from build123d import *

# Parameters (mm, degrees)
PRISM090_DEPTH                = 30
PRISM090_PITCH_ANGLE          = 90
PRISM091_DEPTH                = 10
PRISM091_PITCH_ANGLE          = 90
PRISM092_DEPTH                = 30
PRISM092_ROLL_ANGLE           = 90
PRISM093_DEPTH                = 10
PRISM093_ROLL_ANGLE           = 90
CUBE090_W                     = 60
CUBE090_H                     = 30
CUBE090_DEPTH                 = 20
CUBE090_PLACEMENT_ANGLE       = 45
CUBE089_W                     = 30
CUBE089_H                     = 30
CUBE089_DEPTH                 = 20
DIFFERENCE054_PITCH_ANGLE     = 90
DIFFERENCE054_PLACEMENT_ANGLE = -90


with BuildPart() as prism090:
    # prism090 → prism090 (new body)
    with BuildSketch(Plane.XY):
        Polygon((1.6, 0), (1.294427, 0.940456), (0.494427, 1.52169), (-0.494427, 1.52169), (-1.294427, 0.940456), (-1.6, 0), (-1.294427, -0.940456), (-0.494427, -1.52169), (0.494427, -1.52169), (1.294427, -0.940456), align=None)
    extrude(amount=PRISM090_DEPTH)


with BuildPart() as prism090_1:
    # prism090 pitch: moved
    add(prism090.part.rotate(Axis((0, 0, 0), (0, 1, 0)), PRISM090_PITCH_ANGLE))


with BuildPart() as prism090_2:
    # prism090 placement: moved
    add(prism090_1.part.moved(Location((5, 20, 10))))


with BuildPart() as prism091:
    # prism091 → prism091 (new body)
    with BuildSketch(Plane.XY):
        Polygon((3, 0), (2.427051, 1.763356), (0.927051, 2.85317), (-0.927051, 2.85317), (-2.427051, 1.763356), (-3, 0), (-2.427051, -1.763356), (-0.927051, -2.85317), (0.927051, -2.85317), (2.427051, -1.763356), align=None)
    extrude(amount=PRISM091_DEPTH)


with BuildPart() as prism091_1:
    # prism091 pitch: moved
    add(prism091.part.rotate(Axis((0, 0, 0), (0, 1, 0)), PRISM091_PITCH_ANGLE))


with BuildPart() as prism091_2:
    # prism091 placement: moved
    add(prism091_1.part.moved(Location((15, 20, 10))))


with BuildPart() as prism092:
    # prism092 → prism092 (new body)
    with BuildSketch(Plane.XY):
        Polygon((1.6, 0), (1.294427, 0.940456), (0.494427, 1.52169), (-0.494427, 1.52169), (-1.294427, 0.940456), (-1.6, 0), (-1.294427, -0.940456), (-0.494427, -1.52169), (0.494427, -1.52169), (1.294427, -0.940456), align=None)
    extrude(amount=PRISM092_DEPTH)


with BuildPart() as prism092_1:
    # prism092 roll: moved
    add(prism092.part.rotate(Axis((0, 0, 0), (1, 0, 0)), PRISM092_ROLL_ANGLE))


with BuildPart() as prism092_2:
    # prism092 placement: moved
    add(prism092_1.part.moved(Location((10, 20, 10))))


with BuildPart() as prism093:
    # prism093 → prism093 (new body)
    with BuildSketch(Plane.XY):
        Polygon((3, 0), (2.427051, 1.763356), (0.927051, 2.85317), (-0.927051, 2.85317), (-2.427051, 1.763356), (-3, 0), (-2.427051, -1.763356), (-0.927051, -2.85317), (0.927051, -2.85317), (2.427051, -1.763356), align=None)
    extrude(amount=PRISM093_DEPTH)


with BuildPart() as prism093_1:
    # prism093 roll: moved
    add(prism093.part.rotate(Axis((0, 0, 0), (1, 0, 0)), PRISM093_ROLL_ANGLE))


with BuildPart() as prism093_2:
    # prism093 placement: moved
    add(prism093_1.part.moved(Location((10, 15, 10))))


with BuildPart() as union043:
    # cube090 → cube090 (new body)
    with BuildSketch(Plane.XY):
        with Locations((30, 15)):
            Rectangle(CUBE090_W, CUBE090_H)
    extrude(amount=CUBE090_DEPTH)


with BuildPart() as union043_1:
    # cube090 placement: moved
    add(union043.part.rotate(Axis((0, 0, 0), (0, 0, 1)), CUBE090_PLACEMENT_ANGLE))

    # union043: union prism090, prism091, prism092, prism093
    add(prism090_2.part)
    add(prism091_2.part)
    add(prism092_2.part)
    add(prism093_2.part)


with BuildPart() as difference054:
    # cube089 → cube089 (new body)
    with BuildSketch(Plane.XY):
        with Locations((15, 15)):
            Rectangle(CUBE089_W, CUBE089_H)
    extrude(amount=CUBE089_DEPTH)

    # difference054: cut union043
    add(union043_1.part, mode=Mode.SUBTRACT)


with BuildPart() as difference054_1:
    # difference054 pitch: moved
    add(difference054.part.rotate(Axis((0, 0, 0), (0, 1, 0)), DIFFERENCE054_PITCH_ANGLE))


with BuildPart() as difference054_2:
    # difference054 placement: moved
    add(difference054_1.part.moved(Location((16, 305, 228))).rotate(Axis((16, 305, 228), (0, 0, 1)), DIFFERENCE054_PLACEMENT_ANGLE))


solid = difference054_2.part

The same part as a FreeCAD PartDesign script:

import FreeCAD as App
import Part
import Sketcher
Q = App.Units.Quantity


def add_polygon(sketch, points):
    """Adds a closed chain of lines whose ends are joined by coincident constraints."""
    first, n = sketch.GeometryCount, len(points)
    for a, b in zip(points, points[1:] + points[:1]):
        sketch.addGeometry(Part.LineSegment(App.Vector(*a, 0), App.Vector(*b, 0)), False)
    for i in range(n):
        sketch.addConstraint(Sketcher.Constraint("Coincident", first + i, 2, first + (i + 1) % n, 1))

doc = App.newDocument("Part")
body = doc.addObject("PartDesign::Body", "Body")

# Sketch on XY plane
sketch1 = body.newObject("Sketcher::SketchObject", "Sketch")
sketch1.AttachmentSupport = (doc.getObject("XY_Plane"), [""])
sketch1.MapMode = "FlatFace"
add_polygon(sketch1, [(1.6, 0), (1.3, 0.9), (0.5, 1.5), (-0.5, 1.5), (-1.3, 0.9), (-1.6, 0), (-1.3, -0.9), (-0.5, -1.5), (0.5, -1.5), (1.3, -0.9)])  # lines 0-9
sketch1.addConstraint([
    Sketcher.Constraint("Horizontal", 2),
    Sketcher.Constraint("Horizontal", 7),
    Sketcher.Constraint("Symmetric", 0, 2, 5, 2, -1, 1),
    Sketcher.Constraint("Symmetric", 1, 2, 6, 2, -1, 1),
    Sketcher.Constraint("Symmetric", 3, 2, 8, 2, -1, 1),
    Sketcher.Constraint("Symmetric", 4, 2, 9, 2, -1, 1),
    Sketcher.Constraint("Symmetric", 0, 2, 3, 2, -2),
    Sketcher.Constraint("PointOnObject", 4, 2, -1),
    Sketcher.Constraint("Parallel", 3, 8),
    Sketcher.Constraint("Vertical", 2, 2, 6, 2),
    Sketcher.Constraint("Equal", 0, 1),
    Sketcher.Constraint("Angle", 0, Q("108.000018 deg")),
    Sketcher.Constraint("Angle", 1, Q("144.000001 deg")),
    Sketcher.Constraint("DistanceX", 4, 2, -1, 1, Q("1.6 mm")),
    Sketcher.Constraint("DistanceX", 1, 2, 0, 2, Q("0.8 mm")),
])
pad1 = body.newObject("PartDesign::Pad", "Pad")
pad1.Profile = sketch1
pad1.Length = 30
body2 = doc.addObject("PartDesign::Body", "Body001")
doc.recompute()

body.Placement = App.Placement(App.Vector(0, 0, 0), App.Rotation(App.Vector(0, 1, 0), 90))
boolean = body2.newObject("PartDesign::Boolean", "Boolean")
boolean.Type = "Fuse"
boolean.addObjects([body])
body3 = doc.addObject("PartDesign::Body", "Body002")
doc.recompute()

body2.Placement = App.Placement(App.Vector(5, 20, 10), App.Rotation(App.Vector(0, 0, 1), 0))
boolean2 = body3.newObject("PartDesign::Boolean", "Boolean001")
boolean2.Type = "Fuse"
boolean2.addObjects([body2])
body4 = doc.addObject("PartDesign::Body", "Body003")

# Sketch on XY plane
sketch2 = body4.newObject("Sketcher::SketchObject", "Sketch001")
sketch2.AttachmentSupport = (doc.getObject("XY_Plane003"), [""])
sketch2.MapMode = "FlatFace"
add_polygon(sketch2, [(3, 0), (2.4, 1.8), (0.9, 2.9), (-0.9, 2.9), (-2.4, 1.8), (-3, 0), (-2.4, -1.8), (-0.9, -2.9), (0.9, -2.9), (2.4, -1.8)])  # lines 0-9
sketch2.addConstraint([
    Sketcher.Constraint("Horizontal", 2),
    Sketcher.Constraint("Horizontal", 7),
    Sketcher.Constraint("Symmetric", 0, 2, 5, 2, -1, 1),
    Sketcher.Constraint("Symmetric", 1, 2, 6, 2, -1, 1),
    Sketcher.Constraint("Symmetric", 3, 2, 8, 2, -1, 1),
    Sketcher.Constraint("Symmetric", 4, 2, 9, 2, -1, 1),
    Sketcher.Constraint("Symmetric", 0, 2, 3, 2, -2),
    Sketcher.Constraint("PointOnObject", 4, 2, -1),
    Sketcher.Constraint("Parallel", 3, 8),
    Sketcher.Constraint("Vertical", 2, 2, 6, 2),
    Sketcher.Constraint("Equal", 0, 1),
    Sketcher.Constraint("Angle", 0, Q("107.999997 deg")),
    Sketcher.Constraint("Angle", 1, Q("143.999995 deg")),
    Sketcher.Constraint("DistanceX", 4, 2, -1, 1, Q("3 mm")),
    Sketcher.Constraint("DistanceX", 1, 2, 0, 2, Q("1.5 mm")),
])
pad2 = body4.newObject("PartDesign::Pad", "Pad001")
pad2.Profile = sketch2
pad2.Length = 10
body5 = doc.addObject("PartDesign::Body", "Body004")
doc.recompute()

body4.Placement = App.Placement(App.Vector(0, 0, 0), App.Rotation(App.Vector(0, 1, 0), 90))
boolean3 = body5.newObject("PartDesign::Boolean", "Boolean002")
boolean3.Type = "Fuse"
boolean3.addObjects([body4])
body6 = doc.addObject("PartDesign::Body", "Body005")
doc.recompute()

body5.Placement = App.Placement(App.Vector(15, 20, 10), App.Rotation(App.Vector(0, 0, 1), 0))
boolean4 = body6.newObject("PartDesign::Boolean", "Boolean003")
boolean4.Type = "Fuse"
boolean4.addObjects([body5])
body7 = doc.addObject("PartDesign::Body", "Body006")

# Sketch on XY plane
sketch3 = body7.newObject("Sketcher::SketchObject", "Sketch002")
sketch3.AttachmentSupport = (doc.getObject("XY_Plane006"), [""])
sketch3.MapMode = "FlatFace"
add_polygon(sketch3, [(1.6, 0), (1.3, 0.9), (0.5, 1.5), (-0.5, 1.5), (-1.3, 0.9), (-1.6, 0), (-1.3, -0.9), (-0.5, -1.5), (0.5, -1.5), (1.3, -0.9)])  # lines 0-9
sketch3.addConstraint([
    Sketcher.Constraint("Horizontal", 2),
    Sketcher.Constraint("Horizontal", 7),
    Sketcher.Constraint("Symmetric", 0, 2, 5, 2, -1, 1),
    Sketcher.Constraint("Symmetric", 1, 2, 6, 2, -1, 1),
    Sketcher.Constraint("Symmetric", 3, 2, 8, 2, -1, 1),
    Sketcher.Constraint("Symmetric", 4, 2, 9, 2, -1, 1),
    Sketcher.Constraint("Symmetric", 0, 2, 3, 2, -2),
    Sketcher.Constraint("PointOnObject", 4, 2, -1),
    Sketcher.Constraint("Parallel", 3, 8),
    Sketcher.Constraint("Vertical", 2, 2, 6, 2),
    Sketcher.Constraint("Equal", 0, 1),
    Sketcher.Constraint("Angle", 0, Q("108.000018 deg")),
    Sketcher.Constraint("Angle", 1, Q("144.000001 deg")),
    Sketcher.Constraint("DistanceX", 4, 2, -1, 1, Q("1.6 mm")),
    Sketcher.Constraint("DistanceX", 1, 2, 0, 2, Q("0.8 mm")),
])
pad3 = body7.newObject("PartDesign::Pad", "Pad002")
pad3.Profile = sketch3
pad3.Length = 30
body8 = doc.addObject("PartDesign::Body", "Body007")
doc.recompute()

body7.Placement = App.Placement(App.Vector(0, 0, 0), App.Rotation(App.Vector(1, 0, 0), 90))
boolean5 = body8.newObject("PartDesign::Boolean", "Boolean004")
boolean5.Type = "Fuse"
boolean5.addObjects([body7])
body9 = doc.addObject("PartDesign::Body", "Body008")
doc.recompute()

body8.Placement = App.Placement(App.Vector(10, 20, 10), App.Rotation(App.Vector(0, 0, 1), 0))
boolean6 = body9.newObject("PartDesign::Boolean", "Boolean005")
boolean6.Type = "Fuse"
boolean6.addObjects([body8])
body10 = doc.addObject("PartDesign::Body", "Body009")

# Sketch on XY plane
sketch4 = body10.newObject("Sketcher::SketchObject", "Sketch003")
sketch4.AttachmentSupport = (doc.getObject("XY_Plane009"), [""])
sketch4.MapMode = "FlatFace"
add_polygon(sketch4, [(3, 0), (2.4, 1.8), (0.9, 2.9), (-0.9, 2.9), (-2.4, 1.8), (-3, 0), (-2.4, -1.8), (-0.9, -2.9), (0.9, -2.9), (2.4, -1.8)])  # lines 0-9
sketch4.addConstraint([
    Sketcher.Constraint("Horizontal", 2),
    Sketcher.Constraint("Horizontal", 7),
    Sketcher.Constraint("Symmetric", 0, 2, 5, 2, -1, 1),
    Sketcher.Constraint("Symmetric", 1, 2, 6, 2, -1, 1),
    Sketcher.Constraint("Symmetric", 3, 2, 8, 2, -1, 1),
    Sketcher.Constraint("Symmetric", 4, 2, 9, 2, -1, 1),
    Sketcher.Constraint("Symmetric", 0, 2, 3, 2, -2),
    Sketcher.Constraint("PointOnObject", 4, 2, -1),
    Sketcher.Constraint("Parallel", 3, 8),
    Sketcher.Constraint("Vertical", 2, 2, 6, 2),
    Sketcher.Constraint("Equal", 0, 1),
    Sketcher.Constraint("Angle", 0, Q("107.999997 deg")),
    Sketcher.Constraint("Angle", 1, Q("143.999995 deg")),
    Sketcher.Constraint("DistanceX", 4, 2, -1, 1, Q("3 mm")),
    Sketcher.Constraint("DistanceX", 1, 2, 0, 2, Q("1.5 mm")),
])
pad4 = body10.newObject("PartDesign::Pad", "Pad003")
pad4.Profile = sketch4
pad4.Length = 10
body11 = doc.addObject("PartDesign::Body", "Body010")
doc.recompute()

body10.Placement = App.Placement(App.Vector(0, 0, 0), App.Rotation(App.Vector(1, 0, 0), 90))
boolean7 = body11.newObject("PartDesign::Boolean", "Boolean006")
boolean7.Type = "Fuse"
boolean7.addObjects([body10])
body12 = doc.addObject("PartDesign::Body", "Body011")
doc.recompute()

body11.Placement = App.Placement(App.Vector(10, 15, 10), App.Rotation(App.Vector(0, 0, 1), 0))
boolean8 = body12.newObject("PartDesign::Boolean", "Boolean007")
boolean8.Type = "Fuse"
boolean8.addObjects([body11])
body13 = doc.addObject("PartDesign::Body", "Body012")

# Sketch on XY plane
sketch5 = body13.newObject("Sketcher::SketchObject", "Sketch004")
sketch5.AttachmentSupport = (doc.getObject("XY_Plane012"), [""])
sketch5.MapMode = "FlatFace"
add_polygon(sketch5, [(0, 30), (0, 0), (60, 0), (60, 30)])  # lines 0-3
sketch5.addConstraint([
    Sketcher.Constraint("Vertical", 0),
    Sketcher.Constraint("Horizontal", 1),
    Sketcher.Constraint("Vertical", 2),
    Sketcher.Constraint("Horizontal", 3),
    Sketcher.Constraint("Coincident", 0, 2, -1, 1),
    Sketcher.Constraint("DistanceX", 1, 1, 1, 2, Q("60 mm")),
    Sketcher.Constraint("DistanceY", 0, 2, 0, 1, Q("30 mm")),
])
pad5 = body13.newObject("PartDesign::Pad", "Pad004")
pad5.Profile = sketch5
pad5.Length = 20
body14 = doc.addObject("PartDesign::Body", "Body013")
doc.recompute()

body13.Placement = App.Placement(App.Vector(0, 0, 0), App.Rotation(App.Vector(0, 0, 1), 45))
boolean9 = body14.newObject("PartDesign::Boolean", "Boolean008")
boolean9.Type = "Fuse"
boolean9.addObjects([body13])
doc.recompute()

boolean10 = body14.newObject("PartDesign::Boolean", "Boolean009")
boolean10.Type = "Fuse"
boolean10.addObjects([body3])
doc.recompute()

boolean11 = body14.newObject("PartDesign::Boolean", "Boolean010")
boolean11.Type = "Fuse"
boolean11.addObjects([body6])
doc.recompute()

boolean12 = body14.newObject("PartDesign::Boolean", "Boolean011")
boolean12.Type = "Fuse"
boolean12.addObjects([body9])
doc.recompute()

boolean13 = body14.newObject("PartDesign::Boolean", "Boolean012")
boolean13.Type = "Fuse"
boolean13.addObjects([body12])
body15 = doc.addObject("PartDesign::Body", "Body014")

# Sketch on XY plane
sketch6 = body15.newObject("Sketcher::SketchObject", "Sketch005")
sketch6.AttachmentSupport = (doc.getObject("XY_Plane014"), [""])
sketch6.MapMode = "FlatFace"
add_polygon(sketch6, [(0, 30), (0, 0), (30, 0), (30, 30)])  # lines 0-3
sketch6.addConstraint([
    Sketcher.Constraint("Vertical", 0),
    Sketcher.Constraint("Horizontal", 1),
    Sketcher.Constraint("Vertical", 2),
    Sketcher.Constraint("Horizontal", 3),
    Sketcher.Constraint("Coincident", 0, 2, -1, 1),
    Sketcher.Constraint("Equal", 3, 0),
    Sketcher.Constraint("DistanceX", 1, 1, 1, 2, Q("30 mm")),
])
pad6 = body15.newObject("PartDesign::Pad", "Pad005")
pad6.Profile = sketch6
pad6.Length = 20
doc.recompute()

boolean14 = body15.newObject("PartDesign::Boolean", "Boolean013")
boolean14.Type = "Cut"
boolean14.addObjects([body14])
body16 = doc.addObject("PartDesign::Body", "Body015")
doc.recompute()

body15.Placement = App.Placement(App.Vector(0, 0, 0), App.Rotation(App.Vector(0, 1, 0), 90))
boolean15 = body16.newObject("PartDesign::Boolean", "Boolean014")
boolean15.Type = "Fuse"
boolean15.addObjects([body15])
body17 = doc.addObject("PartDesign::Body", "Body016")
doc.recompute()

body16.Placement = App.Placement(App.Vector(16, 305, 228), App.Rotation(App.Vector(0, 0, 1), 270))
boolean16 = body17.newObject("PartDesign::Boolean", "Boolean015")
boolean16.Type = "Fuse"
boolean16.addObjects([body16])

doc.recompute()
